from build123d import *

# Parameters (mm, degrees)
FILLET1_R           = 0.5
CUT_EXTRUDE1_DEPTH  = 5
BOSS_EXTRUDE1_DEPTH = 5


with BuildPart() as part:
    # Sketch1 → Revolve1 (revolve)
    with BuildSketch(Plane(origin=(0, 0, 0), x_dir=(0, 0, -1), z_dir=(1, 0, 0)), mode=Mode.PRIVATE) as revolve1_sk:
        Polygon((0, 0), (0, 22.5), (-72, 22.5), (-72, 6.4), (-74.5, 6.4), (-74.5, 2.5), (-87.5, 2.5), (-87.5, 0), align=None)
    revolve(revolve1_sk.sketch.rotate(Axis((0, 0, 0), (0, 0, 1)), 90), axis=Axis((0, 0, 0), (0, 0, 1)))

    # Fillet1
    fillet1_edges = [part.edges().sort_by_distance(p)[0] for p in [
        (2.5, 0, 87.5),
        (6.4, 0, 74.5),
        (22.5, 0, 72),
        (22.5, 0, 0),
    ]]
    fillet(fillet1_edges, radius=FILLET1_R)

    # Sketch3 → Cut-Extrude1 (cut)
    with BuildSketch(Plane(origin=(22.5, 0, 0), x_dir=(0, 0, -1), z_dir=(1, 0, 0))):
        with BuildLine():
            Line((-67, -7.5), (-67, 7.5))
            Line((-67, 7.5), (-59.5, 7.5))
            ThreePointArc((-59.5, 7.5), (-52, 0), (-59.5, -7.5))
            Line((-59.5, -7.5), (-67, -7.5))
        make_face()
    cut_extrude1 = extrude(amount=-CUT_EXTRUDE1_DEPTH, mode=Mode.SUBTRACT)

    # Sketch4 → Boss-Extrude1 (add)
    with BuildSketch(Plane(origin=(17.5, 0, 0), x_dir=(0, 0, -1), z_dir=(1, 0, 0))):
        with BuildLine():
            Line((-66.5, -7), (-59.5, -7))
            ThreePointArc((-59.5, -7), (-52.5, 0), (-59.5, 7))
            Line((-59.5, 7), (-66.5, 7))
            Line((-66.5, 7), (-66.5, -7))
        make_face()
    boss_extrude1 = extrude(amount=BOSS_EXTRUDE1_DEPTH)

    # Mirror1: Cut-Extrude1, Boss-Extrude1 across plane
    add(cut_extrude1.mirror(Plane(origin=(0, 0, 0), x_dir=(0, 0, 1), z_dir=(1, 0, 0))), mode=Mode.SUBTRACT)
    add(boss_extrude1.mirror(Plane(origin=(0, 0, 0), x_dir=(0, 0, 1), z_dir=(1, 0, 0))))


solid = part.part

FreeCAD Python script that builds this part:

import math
import FreeCAD as App
import Part
import Sketcher
from FreeCAD import Vector
Q = App.Units.Quantity


def edges_at(feature, points):
    """Names of the edges that pass closest to the given points."""
    edges = feature.Shape.Edges
    near = lambda p: min(range(len(edges)), key=lambda i: edges[i].distToShape(Part.Vertex(*p))[0])
    return sorted({f"Edge{near(p) + 1}" for p in points})

doc = App.newDocument("Part")
body = doc.addObject("PartDesign::Body", "Body")

# Sketch on YZ plane
sketch1 = doc.addObject("Sketcher::SketchObject", "Sketch")
body.addObject(sketch1)
sketch1.AttachmentSupport = (doc.YZ_Plane, [""])
sketch1.MapMode = "FlatFace"
sketch1.addGeometry([
    Part.LineSegment(Vector(0, 0, 0), Vector(22.5, 0, 0)),  # 0
    Part.LineSegment(Vector(22.5, 0, 0), Vector(22.5, 72, 0)),  # 1
    Part.LineSegment(Vector(22.5, 72, 0), Vector(6.4, 72, 0)),  # 2
    Part.LineSegment(Vector(6.4, 72, 0), Vector(6.4, 74.5, 0)),  # 3
    Part.LineSegment(Vector(6.4, 74.5, 0), Vector(2.5, 74.5, 0)),  # 4
    Part.LineSegment(Vector(2.5, 74.5, 0), Vector(2.5, 87.5, 0)),  # 5
    Part.LineSegment(Vector(2.5, 87.5, 0), Vector(0, 87.5, 0)),  # 6
    Part.LineSegment(Vector(0, 87.5, 0), Vector(0, 0, 0)),  # 7
], False)
sketch1.addConstraint([
    Sketcher.Constraint("Coincident", 0, 2, 1, 1),
    Sketcher.Constraint("Coincident", 1, 2, 2, 1),
    Sketcher.Constraint("Coincident", 2, 2, 3, 1),
    Sketcher.Constraint("Coincident", 3, 2, 4, 1),
    Sketcher.Constraint("Coincident", 4, 2, 5, 1),
    Sketcher.Constraint("Coincident", 5, 2, 6, 1),
    Sketcher.Constraint("Coincident", 6, 2, 7, 1),
    Sketcher.Constraint("Coincident", 7, 2, 0, 1),
    Sketcher.Constraint("Horizontal", 0),
    Sketcher.Constraint("Vertical", 1),
    Sketcher.Constraint("Horizontal", 2),
    Sketcher.Constraint("Vertical", 3),
    Sketcher.Constraint("Horizontal", 4),
    Sketcher.Constraint("Vertical", 5),
    Sketcher.Constraint("Horizontal", 6),
    Sketcher.Constraint("Vertical", 7),
    Sketcher.Constraint("Coincident", 7, 2, -1, 1),
    Sketcher.Constraint("Equal", 6, 3),
    Sketcher.Constraint("DistanceY", 1, 1, 1, 2, Q("72 mm")),
    Sketcher.Constraint("DistanceY", 5, 1, 5, 2, Q("13 mm")),
    Sketcher.Constraint("DistanceX", 0, 1, 0, 2, Q("22.5 mm")),
    Sketcher.Constraint("DistanceX", 2, 2, 2, 1, Q("16.1 mm")),
    Sketcher.Constraint("DistanceX", 4, 2, 4, 1, Q("3.9 mm")),
])
revolution = doc.addObject("PartDesign::Revolution", "Revolution")
body.addObject(revolution)
revolution.Profile = sketch1
revolution.ReferenceAxis = (sketch1, ["V_Axis"])
revolution.Angle = 360
doc.recompute()

fillet = doc.addObject("PartDesign::Fillet", "Fillet")
body.addObject(fillet)
fillet.Base = (revolution, edges_at(revolution, [
    (2.5, 0, 87.5),
    (6.4, 0, 74.5),
    (22.5, 0, 72),
    (22.5, 0, 0),
]))
fillet.Radius = 0.5

# Sketch on YZ plane
sketch2 = doc.addObject("Sketcher::SketchObject", "Sketch001")
body.addObject(sketch2)
sketch2.AttachmentSupport = (doc.YZ_Plane, [""])
sketch2.MapMode = "FlatFace"
sketch2.AttachmentOffset = App.Placement(Vector(0, 0, 22.5), App.Rotation())
sketch2.addGeometry([
    Part.LineSegment(Vector(8, 67, 0), Vector(-8, 67, 0)),
    Part.LineSegment(Vector(-8, 67, 0), Vector(-8, 60, 0)),
    Part.ArcOfCircle(Part.Circle(Vector(0, 60, 0), Vector(0, 0, 1), 8), math.radians(180), math.radians(360)),
    Part.LineSegment(Vector(8, 60, 0), Vector(8, 67, 0)),
], False)
sketch2.addConstraint([
    Sketcher.Constraint("Coincident", 0, 2, 1, 1),
    Sketcher.Constraint("Tangent", 1, 2, 2, 1),
    Sketcher.Constraint("Tangent", 2, 2, 3, 1),
    Sketcher.Constraint("Coincident", 3, 2, 0, 1),
    Sketcher.Constraint("Horizontal", 0),
    Sketcher.Constraint("Vertical", 1),
    Sketcher.Constraint("Vertical", 3),
    Sketcher.Constraint("PointOnObject", 2, 3, -2),
    Sketcher.Constraint("Radius", 2, Q("7.5 mm")),
    Sketcher.Constraint("DistanceY", 1, 2, 1, 1, Q("7.5 mm")),
    Sketcher.Constraint("DistanceY", -1, 1, 0, 2, Q("67 mm")),
])
pocket1 = doc.addObject("PartDesign::Pocket", "Pocket")
body.addObject(pocket1)
pocket1.Profile = sketch2
pocket1.Length = 5

# Sketch on YZ plane
sketch3 = doc.addObject("Sketcher::SketchObject", "Sketch002")
body.addObject(sketch3)
sketch3.AttachmentSupport = (doc.YZ_Plane, [""])
sketch3.MapMode = "FlatFace"
sketch3.AttachmentOffset = App.Placement(Vector(0, 0, 17.5), App.Rotation())
sketch3.addGeometry([
    Part.LineSegment(Vector(-7, 66, 0), Vector(-7, 60, 0)),
    Part.ArcOfCircle(Part.Circle(Vector(0, 60, 0), Vector(0, 0, 1), 7), math.radians(180), math.radians(360)),
    Part.LineSegment(Vector(7, 60, 0), Vector(7, 66, 0)),
    Part.LineSegment(Vector(7, 66, 0), Vector(-7, 66, 0)),
], False)
sketch3.addConstraint([
    Sketcher.Constraint("Tangent", 0, 2, 1, 1),
    Sketcher.Constraint("Tangent", 1, 2, 2, 1),
    Sketcher.Constraint("Coincident", 2, 2, 3, 1),
    Sketcher.Constraint("Coincident", 3, 2, 0, 1),
    Sketcher.Constraint("Vertical", 0),
    Sketcher.Constraint("Vertical", 2),
    Sketcher.Constraint("Horizontal", 3),
    Sketcher.Constraint("PointOnObject", 1, 3, -2),
    Sketcher.Constraint("Radius", 1, Q("7 mm")),
    Sketcher.Constraint("DistanceY", 0, 2, 0, 1, Q("7 mm")),
    Sketcher.Constraint("DistanceY", -1, 1, 1, 3, Q("59.5 mm")),
])
pad1 = doc.addObject("PartDesign::Pad", "Pad")
body.addObject(pad1)
pad1.Profile = sketch3
pad1.Length = 5
doc.recompute()

mirrored = doc.addObject("PartDesign::Mirrored", "Mirrored")
body.addObject(mirrored)
mirrored.Originals = [pocket1, pad1]
mirrored.MirrorPlane = (doc.YZ_Plane, [""])
body.Tip = mirrored

doc.recompute()
